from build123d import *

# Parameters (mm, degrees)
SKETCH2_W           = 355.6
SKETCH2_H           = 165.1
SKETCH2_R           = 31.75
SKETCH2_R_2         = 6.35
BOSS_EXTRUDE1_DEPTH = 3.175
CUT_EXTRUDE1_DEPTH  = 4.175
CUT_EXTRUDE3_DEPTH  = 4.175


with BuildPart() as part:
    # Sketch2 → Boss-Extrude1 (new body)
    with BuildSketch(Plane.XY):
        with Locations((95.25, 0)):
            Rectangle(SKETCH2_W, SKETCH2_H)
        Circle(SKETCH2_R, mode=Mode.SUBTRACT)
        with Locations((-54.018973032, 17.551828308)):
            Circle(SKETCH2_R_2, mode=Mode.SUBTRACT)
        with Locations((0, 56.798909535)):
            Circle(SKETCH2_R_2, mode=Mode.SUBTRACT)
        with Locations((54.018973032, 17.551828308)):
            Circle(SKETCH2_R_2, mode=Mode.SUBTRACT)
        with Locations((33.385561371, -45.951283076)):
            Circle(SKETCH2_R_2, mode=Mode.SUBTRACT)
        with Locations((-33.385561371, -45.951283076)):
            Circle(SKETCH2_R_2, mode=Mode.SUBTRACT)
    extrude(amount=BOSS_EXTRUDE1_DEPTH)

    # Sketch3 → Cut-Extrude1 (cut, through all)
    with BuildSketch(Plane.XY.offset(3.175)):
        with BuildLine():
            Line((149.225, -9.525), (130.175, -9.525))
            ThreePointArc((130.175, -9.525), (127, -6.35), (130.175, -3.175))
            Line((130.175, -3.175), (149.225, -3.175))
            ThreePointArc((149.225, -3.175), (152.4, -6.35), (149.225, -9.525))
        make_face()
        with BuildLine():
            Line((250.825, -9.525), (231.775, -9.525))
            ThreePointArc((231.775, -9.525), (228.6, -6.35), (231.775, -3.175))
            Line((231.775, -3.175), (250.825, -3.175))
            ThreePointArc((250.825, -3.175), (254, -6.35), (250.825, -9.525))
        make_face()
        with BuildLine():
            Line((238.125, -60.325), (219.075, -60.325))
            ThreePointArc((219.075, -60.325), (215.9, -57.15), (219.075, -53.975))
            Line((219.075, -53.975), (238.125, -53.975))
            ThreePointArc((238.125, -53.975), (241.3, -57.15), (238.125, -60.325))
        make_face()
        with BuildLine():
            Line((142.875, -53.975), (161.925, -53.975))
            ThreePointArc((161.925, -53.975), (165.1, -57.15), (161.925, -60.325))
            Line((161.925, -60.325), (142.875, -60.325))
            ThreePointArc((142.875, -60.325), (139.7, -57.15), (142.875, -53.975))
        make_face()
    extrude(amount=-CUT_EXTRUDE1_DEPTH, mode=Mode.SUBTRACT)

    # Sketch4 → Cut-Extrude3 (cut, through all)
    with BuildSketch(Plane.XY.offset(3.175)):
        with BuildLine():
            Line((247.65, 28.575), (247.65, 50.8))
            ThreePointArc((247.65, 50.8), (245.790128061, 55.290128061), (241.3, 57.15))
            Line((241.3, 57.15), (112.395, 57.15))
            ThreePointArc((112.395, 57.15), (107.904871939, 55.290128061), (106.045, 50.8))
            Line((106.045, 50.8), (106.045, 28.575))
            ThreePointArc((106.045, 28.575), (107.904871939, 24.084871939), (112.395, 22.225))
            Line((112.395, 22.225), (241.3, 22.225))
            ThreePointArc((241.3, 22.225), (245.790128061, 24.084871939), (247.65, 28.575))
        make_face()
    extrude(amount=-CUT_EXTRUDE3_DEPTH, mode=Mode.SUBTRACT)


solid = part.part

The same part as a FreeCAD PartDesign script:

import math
import FreeCAD as App
import Part
import Sketcher

V = App.Vector
Q = App.Units.Quantity


def add_polygon(sketch, points):
    """Adds a closed chain of lines whose ends are joined by coincident constraints."""
    first, n = sketch.GeometryCount, len(points)
    for a, b in zip(points, points[1:] + points[:1]):
        sketch.addGeometry(Part.LineSegment(App.Vector(*a, 0), App.Vector(*b, 0)), False)
    for i in range(n):
        sketch.addConstraint(Sketcher.Constraint("Coincident", first + i, 2, first + (i + 1) % n, 1))

doc = App.newDocument("Part")
params = doc.addObject("Spreadsheet::Sheet", "Params")
for row, (alias, value) in enumerate([
    ("sketch1_diameter", "0.5 in"),
    ("sketch1_diameter2", "2.5 in"),
    ("sketch1_width", "14 in"),
    ("sketch1_height", "6.5 in"),
    ("pad1_length", "0.125 in"),
    ("sketch2_radius", "0.125 in"),
    ("sketch2_width", "0.75 in"),
    ("sketch3_radius", "0.25 in"),
    ("sketch3_width", "5.075 in"),
    ("sketch3_height", "0.875 in"),
], start=1):
    params.set(f"A{row}", alias)
    params.set(f"B{row}", "=" + value)
    params.setAlias(f"B{row}", alias)

body = doc.addObject("PartDesign::Body", "Body")

# Sketch on XY plane
sketch1 = body.newObject("Sketcher::SketchObject", "Sketch")
sketch1.AttachmentSupport = (doc.getObject("XY_Plane"), [""])
sketch1.MapMode = "FlatFace"
add_polygon(sketch1, [(-83, 83), (-83, -83), (273, -83), (273, 83)])  # lines 0-3
sketch1.addGeometry(Part.Circle(V(-33, -46, 0), V(0, 0, 1), 6), False)  # 4
sketch1.addGeometry(Part.Circle(V(33, -46, 0), V(0, 0, 1), 6), False)  # 5
sketch1.addGeometry(Part.Circle(V(0, 0, 0), V(0, 0, 1), 32), False)  # 6
sketch1.addGeometry(Part.Circle(V(-54, 18, 0), V(0, 0, 1), 6), False)  # 7
sketch1.addGeometry(Part.Circle(V(54, 18, 0), V(0, 0, 1), 6), False)  # 8
sketch1.addGeometry(Part.Circle(V(0, 57, 0), V(0, 0, 1), 6), False)  # 9
sketch1.addConstraint([
    Sketcher.Constraint("Vertical", 0),
    Sketcher.Constraint("Horizontal", 1),
    Sketcher.Constraint("Vertical", 2),
    Sketcher.Constraint("Horizontal", 3),
    Sketcher.Constraint("Coincident", 6, 3, -1, 1),
    Sketcher.Constraint("Equal", 4, 5),
    Sketcher.Constraint("Equal", 5, 7),
    Sketcher.Constraint("Equal", 7, 8),
    Sketcher.Constraint("Equal", 8, 9),
    Sketcher.Constraint("Symmetric", 4, 3, 5, 3, -2),
    Sketcher.Constraint("Symmetric", 7, 3, 8, 3, -2),
    Sketcher.Constraint("PointOnObject", 9, 3, -2),
    Sketcher.Constraint("Diameter", 4, Q("0.5 in")),
    Sketcher.Constraint("Diameter", 6, Q("2.5 in")),
    Sketcher.Constraint("DistanceX", 1, 1, 1, 2, Q("14 in")),
    Sketcher.Constraint("DistanceY", 0, 2, 0, 1, Q("6.5 in")),
    Sketcher.Constraint("DistanceX", 0, 2, -1, 1, Q("3.25 in")),
    Sketcher.Constraint("DistanceY", 0, 2, -1, 1, Q("3.25 in")),
    Sketcher.Constraint("DistanceX", 4, 3, -1, 1, 33.385561),
    Sketcher.Constraint("DistanceY", -1, 1, 7, 3, 17.551828),
    Sketcher.Constraint("DistanceY", -1, 1, 9, 3, 56.79891),
    Sketcher.Constraint("DistanceX", 7, 3, 4, 3, 20.633412),
    Sketcher.Constraint("DistanceY", 4, 3, 7, 3, 63.503111),
])
sketch1.setExpression("Constraints[16]", "Params.sketch1_diameter")
sketch1.setExpression("Constraints[17]", "Params.sketch1_diameter2")
sketch1.setExpression("Constraints[18]", "Params.sketch1_width")
sketch1.setExpression("Constraints[19]", "Params.sketch1_height")
pad1 = body.newObject("PartDesign::Pad", "Pad")
pad1.Profile = sketch1
pad1.setExpression("Length", "Params.pad1_length")

# Sketch on XY plane
sketch2 = body.newObject("Sketcher::SketchObject", "Sketch001")
sketch2.AttachmentSupport = (doc.getObject("XY_Plane"), [""])
sketch2.MapMode = "FlatFace"
sketch2.AttachmentOffset = App.Placement(V(0, 0, 0.125 * 25.4), App.Rotation())
sketch2.addGeometry([
    Part.LineSegment(V(130.2, -9.5, 0), V(149.2, -9.5, 0)),  # 0
    Part.ArcOfCircle(Part.Circle(V(149.2, -6.3, 0), V(0, 0, 1), 3.2), math.radians(-90), math.radians(90)),  # 1
    Part.LineSegment(V(149.2, -3.2, 0), V(130.2, -3.2, 0)),  # 2
    Part.ArcOfCircle(Part.Circle(V(130.2, -6.3, 0), V(0, 0, 1), 3.2), math.radians(90), math.radians(270)),  # 3
    Part.LineSegment(V(231.8, -9.5, 0), V(250.8, -9.5, 0)),  # 4
    Part.ArcOfCircle(Part.Circle(V(250.8, -6.3, 0), V(0, 0, 1), 3.2), math.radians(-90), math.radians(90)),  # 5
    Part.LineSegment(V(250.8, -3.2, 0), V(231.8, -3.2, 0)),  # 6
    Part.ArcOfCircle(Part.Circle(V(231.8, -6.3, 0), V(0, 0, 1), 3.2), math.radians(90), math.radians(270)),  # 7
    Part.LineSegment(V(219.1, -60.3, 0), V(238.1, -60.3, 0)),  # 8
    Part.ArcOfCircle(Part.Circle(V(238.1, -57.1, 0), V(0, 0, 1), 3.2), math.radians(-90), math.radians(90)),  # 9
    Part.LineSegment(V(238.1, -54, 0), V(219.1, -54, 0)),  # 10
    Part.ArcOfCircle(Part.Circle(V(219.1, -57.1, 0), V(0, 0, 1), 3.2), math.radians(90), math.radians(270)),  # 11
    Part.LineSegment(V(161.9, -54, 0), V(142.9, -54, 0)),  # 12
    Part.ArcOfCircle(Part.Circle(V(142.9, -57.1, 0), V(0, 0, 1), 3.2), math.radians(90), math.radians(270)),  # 13
    Part.LineSegment(V(142.9, -60.3, 0), V(161.9, -60.3, 0)),  # 14
    Part.ArcOfCircle(Part.Circle(V(161.9, -57.1, 0), V(0, 0, 1), 3.2), math.radians(-90), math.radians(90)),  # 15
], False)
sketch2.addConstraint([
    Sketcher.Constraint("Tangent", 0, 2, 1, 1),
    Sketcher.Constraint("Tangent", 1, 2, 2, 1),
    Sketcher.Constraint("Tangent", 2, 2, 3, 1),
    Sketcher.Constraint("Tangent", 3, 2, 0, 1),
    Sketcher.Constraint("Tangent", 4, 2, 5, 1),
    Sketcher.Constraint("Tangent", 5, 2, 6, 1),
    Sketcher.Constraint("Tangent", 6, 2, 7, 1),
    Sketcher.Constraint("Tangent", 7, 2, 4, 1),
    Sketcher.Constraint("Tangent", 8, 2, 9, 1),
    Sketcher.Constraint("Tangent", 9, 2, 10, 1),
    Sketcher.Constraint("Tangent", 10, 2, 11, 1),
    Sketcher.Constraint("Tangent", 11, 2, 8, 1),
    Sketcher.Constraint("Tangent", 12, 2, 13, 1),
    Sketcher.Constraint("Tangent", 13, 2, 14, 1),
    Sketcher.Constraint("Tangent", 14, 2, 15, 1),
    Sketcher.Constraint("Tangent", 15, 2, 12, 1),
    Sketcher.Constraint("Horizontal", 0),
    Sketcher.Constraint("Horizontal", 2),
    Sketcher.Constraint("Horizontal", 4),
    Sketcher.Constraint("Horizontal", 6),
    Sketcher.Constraint("Horizontal", 8),
    Sketcher.Constraint("Horizontal", 10),
    Sketcher.Constraint("Horizontal", 12),
    Sketcher.Constraint("Horizontal", 14),
    Sketcher.Constraint("Equal", 3, 5),
    Sketcher.Constraint("Equal", 7, 9),
    Sketcher.Constraint("Equal", 11, 13),
    Sketcher.Constraint("Horizontal", 3, 3, 5, 3),
    Sketcher.Constraint("Horizontal", 11, 3, 13, 3),
    Sketcher.Constraint("Equal", 2, 4),
    Sketcher.Constraint("Equal", 6, 8),
    Sketcher.Constraint("Equal", 10, 12),
    Sketcher.Constraint("Radius", 1, Q("0.125 in")),
    Sketcher.Constraint("DistanceX", 1, 3, 5, 3, Q("4 in")),
    Sketcher.Constraint("DistanceY", 9, 3, 7, 3, Q("2 in")),
    Sketcher.Constraint("DistanceX", 13, 3, 11, 3, Q("3 in")),
    Sketcher.Constraint("DistanceX", 0, 1, 0, 2, Q("0.75 in")),
    Sketcher.Constraint("DistanceX", 9, 3, 5, 3, Q("0.5 in")),
    Sketcher.Constraint("DistanceY", 1, 3, -1, 1, Q("0.25 in")),
    Sketcher.Constraint("DistanceX", -1, 1, 1, 3, Q("5.875 in")),
])
sketch2.setExpression("Constraints[32]", "Params.sketch2_radius")
sketch2.setExpression("Constraints[36]", "Params.sketch2_width")
pocket1 = body.newObject("PartDesign::Pocket", "Pocket")
pocket1.Profile = sketch2
pocket1.Type = "ThroughAll"

# Sketch on XY plane
sketch3 = body.newObject("Sketcher::SketchObject", "Sketch002")
sketch3.AttachmentSupport = (doc.getObject("XY_Plane"), [""])
sketch3.MapMode = "FlatFace"
sketch3.AttachmentOffset = App.Placement(V(0, 0, 0.125 * 25.4), App.Rotation())
sketch3.addGeometry([
    Part.LineSegment(V(248, 29, 0), V(248, 51, 0)),  # 0
    Part.ArcOfCircle(Part.Circle(V(241, 51, 0), V(0, 0, 1), 6), math.radians(0), math.radians(90)),  # 1
    Part.LineSegment(V(241, 57, 0), V(112, 57, 0)),  # 2
    Part.ArcOfCircle(Part.Circle(V(112, 51, 0), V(0, 0, 1), 6), math.radians(90), math.radians(180)),  # 3
    Part.LineSegment(V(106, 51, 0), V(106, 29, 0)),  # 4
    Part.ArcOfCircle(Part.Circle(V(112, 29, 0), V(0, 0, 1), 6), math.radians(180), math.radians(270)),  # 5
    Part.LineSegment(V(112, 22, 0), V(241, 22, 0)),  # 6
    Part.ArcOfCircle(Part.Circle(V(241, 29, 0), V(0, 0, 1), 6), math.radians(-90), math.radians(0)),  # 7
], False)
sketch3.addConstraint([
    Sketcher.Constraint("Tangent", 0, 2, 1, 1),
    Sketcher.Constraint("Tangent", 1, 2, 2, 1),
    Sketcher.Constraint("Tangent", 2, 2, 3, 1),
    Sketcher.Constraint("Tangent", 3, 2, 4, 1),
    Sketcher.Constraint("Tangent", 4, 2, 5, 1),
    Sketcher.Constraint("Tangent", 5, 2, 6, 1),
    Sketcher.Constraint("Tangent", 6, 2, 7, 1),
    Sketcher.Constraint("Tangent", 7, 2, 0, 1),
    Sketcher.Constraint("Vertical", 0),
    Sketcher.Constraint("Horizontal", 2),
    Sketcher.Constraint("Vertical", 4),
    Sketcher.Constraint("Horizontal", 6),
    Sketcher.Constraint("Equal", 1, 3),
    Sketcher.Constraint("Equal", 3, 5),
    Sketcher.Constraint("Equal", 5, 7),
    Sketcher.Constraint("Radius", 1, Q("0.25 in")),
    Sketcher.Constraint("DistanceY", -1, 1, 1, 3, Q("2 in")),
    Sketcher.Constraint("DistanceX", -1, 1, 1, 3, Q("9.5 in")),
    Sketcher.Constraint("DistanceX", 2, 2, 2, 1, Q("5.075 in")),
    Sketcher.Constraint("DistanceY", 0, 1, 0, 2, Q("0.875 in")),
])
sketch3.setExpression("Constraints[15]", "Params.sketch3_radius")
sketch3.setExpression("Constraints[18]", "Params.sketch3_width")
sketch3.setExpression("Constraints[19]", "Params.sketch3_height")
pocket2 = body.newObject("PartDesign::Pocket", "Pocket001")
pocket2.Profile = sketch3
pocket2.Type = "ThroughAll"

doc.recompute()
